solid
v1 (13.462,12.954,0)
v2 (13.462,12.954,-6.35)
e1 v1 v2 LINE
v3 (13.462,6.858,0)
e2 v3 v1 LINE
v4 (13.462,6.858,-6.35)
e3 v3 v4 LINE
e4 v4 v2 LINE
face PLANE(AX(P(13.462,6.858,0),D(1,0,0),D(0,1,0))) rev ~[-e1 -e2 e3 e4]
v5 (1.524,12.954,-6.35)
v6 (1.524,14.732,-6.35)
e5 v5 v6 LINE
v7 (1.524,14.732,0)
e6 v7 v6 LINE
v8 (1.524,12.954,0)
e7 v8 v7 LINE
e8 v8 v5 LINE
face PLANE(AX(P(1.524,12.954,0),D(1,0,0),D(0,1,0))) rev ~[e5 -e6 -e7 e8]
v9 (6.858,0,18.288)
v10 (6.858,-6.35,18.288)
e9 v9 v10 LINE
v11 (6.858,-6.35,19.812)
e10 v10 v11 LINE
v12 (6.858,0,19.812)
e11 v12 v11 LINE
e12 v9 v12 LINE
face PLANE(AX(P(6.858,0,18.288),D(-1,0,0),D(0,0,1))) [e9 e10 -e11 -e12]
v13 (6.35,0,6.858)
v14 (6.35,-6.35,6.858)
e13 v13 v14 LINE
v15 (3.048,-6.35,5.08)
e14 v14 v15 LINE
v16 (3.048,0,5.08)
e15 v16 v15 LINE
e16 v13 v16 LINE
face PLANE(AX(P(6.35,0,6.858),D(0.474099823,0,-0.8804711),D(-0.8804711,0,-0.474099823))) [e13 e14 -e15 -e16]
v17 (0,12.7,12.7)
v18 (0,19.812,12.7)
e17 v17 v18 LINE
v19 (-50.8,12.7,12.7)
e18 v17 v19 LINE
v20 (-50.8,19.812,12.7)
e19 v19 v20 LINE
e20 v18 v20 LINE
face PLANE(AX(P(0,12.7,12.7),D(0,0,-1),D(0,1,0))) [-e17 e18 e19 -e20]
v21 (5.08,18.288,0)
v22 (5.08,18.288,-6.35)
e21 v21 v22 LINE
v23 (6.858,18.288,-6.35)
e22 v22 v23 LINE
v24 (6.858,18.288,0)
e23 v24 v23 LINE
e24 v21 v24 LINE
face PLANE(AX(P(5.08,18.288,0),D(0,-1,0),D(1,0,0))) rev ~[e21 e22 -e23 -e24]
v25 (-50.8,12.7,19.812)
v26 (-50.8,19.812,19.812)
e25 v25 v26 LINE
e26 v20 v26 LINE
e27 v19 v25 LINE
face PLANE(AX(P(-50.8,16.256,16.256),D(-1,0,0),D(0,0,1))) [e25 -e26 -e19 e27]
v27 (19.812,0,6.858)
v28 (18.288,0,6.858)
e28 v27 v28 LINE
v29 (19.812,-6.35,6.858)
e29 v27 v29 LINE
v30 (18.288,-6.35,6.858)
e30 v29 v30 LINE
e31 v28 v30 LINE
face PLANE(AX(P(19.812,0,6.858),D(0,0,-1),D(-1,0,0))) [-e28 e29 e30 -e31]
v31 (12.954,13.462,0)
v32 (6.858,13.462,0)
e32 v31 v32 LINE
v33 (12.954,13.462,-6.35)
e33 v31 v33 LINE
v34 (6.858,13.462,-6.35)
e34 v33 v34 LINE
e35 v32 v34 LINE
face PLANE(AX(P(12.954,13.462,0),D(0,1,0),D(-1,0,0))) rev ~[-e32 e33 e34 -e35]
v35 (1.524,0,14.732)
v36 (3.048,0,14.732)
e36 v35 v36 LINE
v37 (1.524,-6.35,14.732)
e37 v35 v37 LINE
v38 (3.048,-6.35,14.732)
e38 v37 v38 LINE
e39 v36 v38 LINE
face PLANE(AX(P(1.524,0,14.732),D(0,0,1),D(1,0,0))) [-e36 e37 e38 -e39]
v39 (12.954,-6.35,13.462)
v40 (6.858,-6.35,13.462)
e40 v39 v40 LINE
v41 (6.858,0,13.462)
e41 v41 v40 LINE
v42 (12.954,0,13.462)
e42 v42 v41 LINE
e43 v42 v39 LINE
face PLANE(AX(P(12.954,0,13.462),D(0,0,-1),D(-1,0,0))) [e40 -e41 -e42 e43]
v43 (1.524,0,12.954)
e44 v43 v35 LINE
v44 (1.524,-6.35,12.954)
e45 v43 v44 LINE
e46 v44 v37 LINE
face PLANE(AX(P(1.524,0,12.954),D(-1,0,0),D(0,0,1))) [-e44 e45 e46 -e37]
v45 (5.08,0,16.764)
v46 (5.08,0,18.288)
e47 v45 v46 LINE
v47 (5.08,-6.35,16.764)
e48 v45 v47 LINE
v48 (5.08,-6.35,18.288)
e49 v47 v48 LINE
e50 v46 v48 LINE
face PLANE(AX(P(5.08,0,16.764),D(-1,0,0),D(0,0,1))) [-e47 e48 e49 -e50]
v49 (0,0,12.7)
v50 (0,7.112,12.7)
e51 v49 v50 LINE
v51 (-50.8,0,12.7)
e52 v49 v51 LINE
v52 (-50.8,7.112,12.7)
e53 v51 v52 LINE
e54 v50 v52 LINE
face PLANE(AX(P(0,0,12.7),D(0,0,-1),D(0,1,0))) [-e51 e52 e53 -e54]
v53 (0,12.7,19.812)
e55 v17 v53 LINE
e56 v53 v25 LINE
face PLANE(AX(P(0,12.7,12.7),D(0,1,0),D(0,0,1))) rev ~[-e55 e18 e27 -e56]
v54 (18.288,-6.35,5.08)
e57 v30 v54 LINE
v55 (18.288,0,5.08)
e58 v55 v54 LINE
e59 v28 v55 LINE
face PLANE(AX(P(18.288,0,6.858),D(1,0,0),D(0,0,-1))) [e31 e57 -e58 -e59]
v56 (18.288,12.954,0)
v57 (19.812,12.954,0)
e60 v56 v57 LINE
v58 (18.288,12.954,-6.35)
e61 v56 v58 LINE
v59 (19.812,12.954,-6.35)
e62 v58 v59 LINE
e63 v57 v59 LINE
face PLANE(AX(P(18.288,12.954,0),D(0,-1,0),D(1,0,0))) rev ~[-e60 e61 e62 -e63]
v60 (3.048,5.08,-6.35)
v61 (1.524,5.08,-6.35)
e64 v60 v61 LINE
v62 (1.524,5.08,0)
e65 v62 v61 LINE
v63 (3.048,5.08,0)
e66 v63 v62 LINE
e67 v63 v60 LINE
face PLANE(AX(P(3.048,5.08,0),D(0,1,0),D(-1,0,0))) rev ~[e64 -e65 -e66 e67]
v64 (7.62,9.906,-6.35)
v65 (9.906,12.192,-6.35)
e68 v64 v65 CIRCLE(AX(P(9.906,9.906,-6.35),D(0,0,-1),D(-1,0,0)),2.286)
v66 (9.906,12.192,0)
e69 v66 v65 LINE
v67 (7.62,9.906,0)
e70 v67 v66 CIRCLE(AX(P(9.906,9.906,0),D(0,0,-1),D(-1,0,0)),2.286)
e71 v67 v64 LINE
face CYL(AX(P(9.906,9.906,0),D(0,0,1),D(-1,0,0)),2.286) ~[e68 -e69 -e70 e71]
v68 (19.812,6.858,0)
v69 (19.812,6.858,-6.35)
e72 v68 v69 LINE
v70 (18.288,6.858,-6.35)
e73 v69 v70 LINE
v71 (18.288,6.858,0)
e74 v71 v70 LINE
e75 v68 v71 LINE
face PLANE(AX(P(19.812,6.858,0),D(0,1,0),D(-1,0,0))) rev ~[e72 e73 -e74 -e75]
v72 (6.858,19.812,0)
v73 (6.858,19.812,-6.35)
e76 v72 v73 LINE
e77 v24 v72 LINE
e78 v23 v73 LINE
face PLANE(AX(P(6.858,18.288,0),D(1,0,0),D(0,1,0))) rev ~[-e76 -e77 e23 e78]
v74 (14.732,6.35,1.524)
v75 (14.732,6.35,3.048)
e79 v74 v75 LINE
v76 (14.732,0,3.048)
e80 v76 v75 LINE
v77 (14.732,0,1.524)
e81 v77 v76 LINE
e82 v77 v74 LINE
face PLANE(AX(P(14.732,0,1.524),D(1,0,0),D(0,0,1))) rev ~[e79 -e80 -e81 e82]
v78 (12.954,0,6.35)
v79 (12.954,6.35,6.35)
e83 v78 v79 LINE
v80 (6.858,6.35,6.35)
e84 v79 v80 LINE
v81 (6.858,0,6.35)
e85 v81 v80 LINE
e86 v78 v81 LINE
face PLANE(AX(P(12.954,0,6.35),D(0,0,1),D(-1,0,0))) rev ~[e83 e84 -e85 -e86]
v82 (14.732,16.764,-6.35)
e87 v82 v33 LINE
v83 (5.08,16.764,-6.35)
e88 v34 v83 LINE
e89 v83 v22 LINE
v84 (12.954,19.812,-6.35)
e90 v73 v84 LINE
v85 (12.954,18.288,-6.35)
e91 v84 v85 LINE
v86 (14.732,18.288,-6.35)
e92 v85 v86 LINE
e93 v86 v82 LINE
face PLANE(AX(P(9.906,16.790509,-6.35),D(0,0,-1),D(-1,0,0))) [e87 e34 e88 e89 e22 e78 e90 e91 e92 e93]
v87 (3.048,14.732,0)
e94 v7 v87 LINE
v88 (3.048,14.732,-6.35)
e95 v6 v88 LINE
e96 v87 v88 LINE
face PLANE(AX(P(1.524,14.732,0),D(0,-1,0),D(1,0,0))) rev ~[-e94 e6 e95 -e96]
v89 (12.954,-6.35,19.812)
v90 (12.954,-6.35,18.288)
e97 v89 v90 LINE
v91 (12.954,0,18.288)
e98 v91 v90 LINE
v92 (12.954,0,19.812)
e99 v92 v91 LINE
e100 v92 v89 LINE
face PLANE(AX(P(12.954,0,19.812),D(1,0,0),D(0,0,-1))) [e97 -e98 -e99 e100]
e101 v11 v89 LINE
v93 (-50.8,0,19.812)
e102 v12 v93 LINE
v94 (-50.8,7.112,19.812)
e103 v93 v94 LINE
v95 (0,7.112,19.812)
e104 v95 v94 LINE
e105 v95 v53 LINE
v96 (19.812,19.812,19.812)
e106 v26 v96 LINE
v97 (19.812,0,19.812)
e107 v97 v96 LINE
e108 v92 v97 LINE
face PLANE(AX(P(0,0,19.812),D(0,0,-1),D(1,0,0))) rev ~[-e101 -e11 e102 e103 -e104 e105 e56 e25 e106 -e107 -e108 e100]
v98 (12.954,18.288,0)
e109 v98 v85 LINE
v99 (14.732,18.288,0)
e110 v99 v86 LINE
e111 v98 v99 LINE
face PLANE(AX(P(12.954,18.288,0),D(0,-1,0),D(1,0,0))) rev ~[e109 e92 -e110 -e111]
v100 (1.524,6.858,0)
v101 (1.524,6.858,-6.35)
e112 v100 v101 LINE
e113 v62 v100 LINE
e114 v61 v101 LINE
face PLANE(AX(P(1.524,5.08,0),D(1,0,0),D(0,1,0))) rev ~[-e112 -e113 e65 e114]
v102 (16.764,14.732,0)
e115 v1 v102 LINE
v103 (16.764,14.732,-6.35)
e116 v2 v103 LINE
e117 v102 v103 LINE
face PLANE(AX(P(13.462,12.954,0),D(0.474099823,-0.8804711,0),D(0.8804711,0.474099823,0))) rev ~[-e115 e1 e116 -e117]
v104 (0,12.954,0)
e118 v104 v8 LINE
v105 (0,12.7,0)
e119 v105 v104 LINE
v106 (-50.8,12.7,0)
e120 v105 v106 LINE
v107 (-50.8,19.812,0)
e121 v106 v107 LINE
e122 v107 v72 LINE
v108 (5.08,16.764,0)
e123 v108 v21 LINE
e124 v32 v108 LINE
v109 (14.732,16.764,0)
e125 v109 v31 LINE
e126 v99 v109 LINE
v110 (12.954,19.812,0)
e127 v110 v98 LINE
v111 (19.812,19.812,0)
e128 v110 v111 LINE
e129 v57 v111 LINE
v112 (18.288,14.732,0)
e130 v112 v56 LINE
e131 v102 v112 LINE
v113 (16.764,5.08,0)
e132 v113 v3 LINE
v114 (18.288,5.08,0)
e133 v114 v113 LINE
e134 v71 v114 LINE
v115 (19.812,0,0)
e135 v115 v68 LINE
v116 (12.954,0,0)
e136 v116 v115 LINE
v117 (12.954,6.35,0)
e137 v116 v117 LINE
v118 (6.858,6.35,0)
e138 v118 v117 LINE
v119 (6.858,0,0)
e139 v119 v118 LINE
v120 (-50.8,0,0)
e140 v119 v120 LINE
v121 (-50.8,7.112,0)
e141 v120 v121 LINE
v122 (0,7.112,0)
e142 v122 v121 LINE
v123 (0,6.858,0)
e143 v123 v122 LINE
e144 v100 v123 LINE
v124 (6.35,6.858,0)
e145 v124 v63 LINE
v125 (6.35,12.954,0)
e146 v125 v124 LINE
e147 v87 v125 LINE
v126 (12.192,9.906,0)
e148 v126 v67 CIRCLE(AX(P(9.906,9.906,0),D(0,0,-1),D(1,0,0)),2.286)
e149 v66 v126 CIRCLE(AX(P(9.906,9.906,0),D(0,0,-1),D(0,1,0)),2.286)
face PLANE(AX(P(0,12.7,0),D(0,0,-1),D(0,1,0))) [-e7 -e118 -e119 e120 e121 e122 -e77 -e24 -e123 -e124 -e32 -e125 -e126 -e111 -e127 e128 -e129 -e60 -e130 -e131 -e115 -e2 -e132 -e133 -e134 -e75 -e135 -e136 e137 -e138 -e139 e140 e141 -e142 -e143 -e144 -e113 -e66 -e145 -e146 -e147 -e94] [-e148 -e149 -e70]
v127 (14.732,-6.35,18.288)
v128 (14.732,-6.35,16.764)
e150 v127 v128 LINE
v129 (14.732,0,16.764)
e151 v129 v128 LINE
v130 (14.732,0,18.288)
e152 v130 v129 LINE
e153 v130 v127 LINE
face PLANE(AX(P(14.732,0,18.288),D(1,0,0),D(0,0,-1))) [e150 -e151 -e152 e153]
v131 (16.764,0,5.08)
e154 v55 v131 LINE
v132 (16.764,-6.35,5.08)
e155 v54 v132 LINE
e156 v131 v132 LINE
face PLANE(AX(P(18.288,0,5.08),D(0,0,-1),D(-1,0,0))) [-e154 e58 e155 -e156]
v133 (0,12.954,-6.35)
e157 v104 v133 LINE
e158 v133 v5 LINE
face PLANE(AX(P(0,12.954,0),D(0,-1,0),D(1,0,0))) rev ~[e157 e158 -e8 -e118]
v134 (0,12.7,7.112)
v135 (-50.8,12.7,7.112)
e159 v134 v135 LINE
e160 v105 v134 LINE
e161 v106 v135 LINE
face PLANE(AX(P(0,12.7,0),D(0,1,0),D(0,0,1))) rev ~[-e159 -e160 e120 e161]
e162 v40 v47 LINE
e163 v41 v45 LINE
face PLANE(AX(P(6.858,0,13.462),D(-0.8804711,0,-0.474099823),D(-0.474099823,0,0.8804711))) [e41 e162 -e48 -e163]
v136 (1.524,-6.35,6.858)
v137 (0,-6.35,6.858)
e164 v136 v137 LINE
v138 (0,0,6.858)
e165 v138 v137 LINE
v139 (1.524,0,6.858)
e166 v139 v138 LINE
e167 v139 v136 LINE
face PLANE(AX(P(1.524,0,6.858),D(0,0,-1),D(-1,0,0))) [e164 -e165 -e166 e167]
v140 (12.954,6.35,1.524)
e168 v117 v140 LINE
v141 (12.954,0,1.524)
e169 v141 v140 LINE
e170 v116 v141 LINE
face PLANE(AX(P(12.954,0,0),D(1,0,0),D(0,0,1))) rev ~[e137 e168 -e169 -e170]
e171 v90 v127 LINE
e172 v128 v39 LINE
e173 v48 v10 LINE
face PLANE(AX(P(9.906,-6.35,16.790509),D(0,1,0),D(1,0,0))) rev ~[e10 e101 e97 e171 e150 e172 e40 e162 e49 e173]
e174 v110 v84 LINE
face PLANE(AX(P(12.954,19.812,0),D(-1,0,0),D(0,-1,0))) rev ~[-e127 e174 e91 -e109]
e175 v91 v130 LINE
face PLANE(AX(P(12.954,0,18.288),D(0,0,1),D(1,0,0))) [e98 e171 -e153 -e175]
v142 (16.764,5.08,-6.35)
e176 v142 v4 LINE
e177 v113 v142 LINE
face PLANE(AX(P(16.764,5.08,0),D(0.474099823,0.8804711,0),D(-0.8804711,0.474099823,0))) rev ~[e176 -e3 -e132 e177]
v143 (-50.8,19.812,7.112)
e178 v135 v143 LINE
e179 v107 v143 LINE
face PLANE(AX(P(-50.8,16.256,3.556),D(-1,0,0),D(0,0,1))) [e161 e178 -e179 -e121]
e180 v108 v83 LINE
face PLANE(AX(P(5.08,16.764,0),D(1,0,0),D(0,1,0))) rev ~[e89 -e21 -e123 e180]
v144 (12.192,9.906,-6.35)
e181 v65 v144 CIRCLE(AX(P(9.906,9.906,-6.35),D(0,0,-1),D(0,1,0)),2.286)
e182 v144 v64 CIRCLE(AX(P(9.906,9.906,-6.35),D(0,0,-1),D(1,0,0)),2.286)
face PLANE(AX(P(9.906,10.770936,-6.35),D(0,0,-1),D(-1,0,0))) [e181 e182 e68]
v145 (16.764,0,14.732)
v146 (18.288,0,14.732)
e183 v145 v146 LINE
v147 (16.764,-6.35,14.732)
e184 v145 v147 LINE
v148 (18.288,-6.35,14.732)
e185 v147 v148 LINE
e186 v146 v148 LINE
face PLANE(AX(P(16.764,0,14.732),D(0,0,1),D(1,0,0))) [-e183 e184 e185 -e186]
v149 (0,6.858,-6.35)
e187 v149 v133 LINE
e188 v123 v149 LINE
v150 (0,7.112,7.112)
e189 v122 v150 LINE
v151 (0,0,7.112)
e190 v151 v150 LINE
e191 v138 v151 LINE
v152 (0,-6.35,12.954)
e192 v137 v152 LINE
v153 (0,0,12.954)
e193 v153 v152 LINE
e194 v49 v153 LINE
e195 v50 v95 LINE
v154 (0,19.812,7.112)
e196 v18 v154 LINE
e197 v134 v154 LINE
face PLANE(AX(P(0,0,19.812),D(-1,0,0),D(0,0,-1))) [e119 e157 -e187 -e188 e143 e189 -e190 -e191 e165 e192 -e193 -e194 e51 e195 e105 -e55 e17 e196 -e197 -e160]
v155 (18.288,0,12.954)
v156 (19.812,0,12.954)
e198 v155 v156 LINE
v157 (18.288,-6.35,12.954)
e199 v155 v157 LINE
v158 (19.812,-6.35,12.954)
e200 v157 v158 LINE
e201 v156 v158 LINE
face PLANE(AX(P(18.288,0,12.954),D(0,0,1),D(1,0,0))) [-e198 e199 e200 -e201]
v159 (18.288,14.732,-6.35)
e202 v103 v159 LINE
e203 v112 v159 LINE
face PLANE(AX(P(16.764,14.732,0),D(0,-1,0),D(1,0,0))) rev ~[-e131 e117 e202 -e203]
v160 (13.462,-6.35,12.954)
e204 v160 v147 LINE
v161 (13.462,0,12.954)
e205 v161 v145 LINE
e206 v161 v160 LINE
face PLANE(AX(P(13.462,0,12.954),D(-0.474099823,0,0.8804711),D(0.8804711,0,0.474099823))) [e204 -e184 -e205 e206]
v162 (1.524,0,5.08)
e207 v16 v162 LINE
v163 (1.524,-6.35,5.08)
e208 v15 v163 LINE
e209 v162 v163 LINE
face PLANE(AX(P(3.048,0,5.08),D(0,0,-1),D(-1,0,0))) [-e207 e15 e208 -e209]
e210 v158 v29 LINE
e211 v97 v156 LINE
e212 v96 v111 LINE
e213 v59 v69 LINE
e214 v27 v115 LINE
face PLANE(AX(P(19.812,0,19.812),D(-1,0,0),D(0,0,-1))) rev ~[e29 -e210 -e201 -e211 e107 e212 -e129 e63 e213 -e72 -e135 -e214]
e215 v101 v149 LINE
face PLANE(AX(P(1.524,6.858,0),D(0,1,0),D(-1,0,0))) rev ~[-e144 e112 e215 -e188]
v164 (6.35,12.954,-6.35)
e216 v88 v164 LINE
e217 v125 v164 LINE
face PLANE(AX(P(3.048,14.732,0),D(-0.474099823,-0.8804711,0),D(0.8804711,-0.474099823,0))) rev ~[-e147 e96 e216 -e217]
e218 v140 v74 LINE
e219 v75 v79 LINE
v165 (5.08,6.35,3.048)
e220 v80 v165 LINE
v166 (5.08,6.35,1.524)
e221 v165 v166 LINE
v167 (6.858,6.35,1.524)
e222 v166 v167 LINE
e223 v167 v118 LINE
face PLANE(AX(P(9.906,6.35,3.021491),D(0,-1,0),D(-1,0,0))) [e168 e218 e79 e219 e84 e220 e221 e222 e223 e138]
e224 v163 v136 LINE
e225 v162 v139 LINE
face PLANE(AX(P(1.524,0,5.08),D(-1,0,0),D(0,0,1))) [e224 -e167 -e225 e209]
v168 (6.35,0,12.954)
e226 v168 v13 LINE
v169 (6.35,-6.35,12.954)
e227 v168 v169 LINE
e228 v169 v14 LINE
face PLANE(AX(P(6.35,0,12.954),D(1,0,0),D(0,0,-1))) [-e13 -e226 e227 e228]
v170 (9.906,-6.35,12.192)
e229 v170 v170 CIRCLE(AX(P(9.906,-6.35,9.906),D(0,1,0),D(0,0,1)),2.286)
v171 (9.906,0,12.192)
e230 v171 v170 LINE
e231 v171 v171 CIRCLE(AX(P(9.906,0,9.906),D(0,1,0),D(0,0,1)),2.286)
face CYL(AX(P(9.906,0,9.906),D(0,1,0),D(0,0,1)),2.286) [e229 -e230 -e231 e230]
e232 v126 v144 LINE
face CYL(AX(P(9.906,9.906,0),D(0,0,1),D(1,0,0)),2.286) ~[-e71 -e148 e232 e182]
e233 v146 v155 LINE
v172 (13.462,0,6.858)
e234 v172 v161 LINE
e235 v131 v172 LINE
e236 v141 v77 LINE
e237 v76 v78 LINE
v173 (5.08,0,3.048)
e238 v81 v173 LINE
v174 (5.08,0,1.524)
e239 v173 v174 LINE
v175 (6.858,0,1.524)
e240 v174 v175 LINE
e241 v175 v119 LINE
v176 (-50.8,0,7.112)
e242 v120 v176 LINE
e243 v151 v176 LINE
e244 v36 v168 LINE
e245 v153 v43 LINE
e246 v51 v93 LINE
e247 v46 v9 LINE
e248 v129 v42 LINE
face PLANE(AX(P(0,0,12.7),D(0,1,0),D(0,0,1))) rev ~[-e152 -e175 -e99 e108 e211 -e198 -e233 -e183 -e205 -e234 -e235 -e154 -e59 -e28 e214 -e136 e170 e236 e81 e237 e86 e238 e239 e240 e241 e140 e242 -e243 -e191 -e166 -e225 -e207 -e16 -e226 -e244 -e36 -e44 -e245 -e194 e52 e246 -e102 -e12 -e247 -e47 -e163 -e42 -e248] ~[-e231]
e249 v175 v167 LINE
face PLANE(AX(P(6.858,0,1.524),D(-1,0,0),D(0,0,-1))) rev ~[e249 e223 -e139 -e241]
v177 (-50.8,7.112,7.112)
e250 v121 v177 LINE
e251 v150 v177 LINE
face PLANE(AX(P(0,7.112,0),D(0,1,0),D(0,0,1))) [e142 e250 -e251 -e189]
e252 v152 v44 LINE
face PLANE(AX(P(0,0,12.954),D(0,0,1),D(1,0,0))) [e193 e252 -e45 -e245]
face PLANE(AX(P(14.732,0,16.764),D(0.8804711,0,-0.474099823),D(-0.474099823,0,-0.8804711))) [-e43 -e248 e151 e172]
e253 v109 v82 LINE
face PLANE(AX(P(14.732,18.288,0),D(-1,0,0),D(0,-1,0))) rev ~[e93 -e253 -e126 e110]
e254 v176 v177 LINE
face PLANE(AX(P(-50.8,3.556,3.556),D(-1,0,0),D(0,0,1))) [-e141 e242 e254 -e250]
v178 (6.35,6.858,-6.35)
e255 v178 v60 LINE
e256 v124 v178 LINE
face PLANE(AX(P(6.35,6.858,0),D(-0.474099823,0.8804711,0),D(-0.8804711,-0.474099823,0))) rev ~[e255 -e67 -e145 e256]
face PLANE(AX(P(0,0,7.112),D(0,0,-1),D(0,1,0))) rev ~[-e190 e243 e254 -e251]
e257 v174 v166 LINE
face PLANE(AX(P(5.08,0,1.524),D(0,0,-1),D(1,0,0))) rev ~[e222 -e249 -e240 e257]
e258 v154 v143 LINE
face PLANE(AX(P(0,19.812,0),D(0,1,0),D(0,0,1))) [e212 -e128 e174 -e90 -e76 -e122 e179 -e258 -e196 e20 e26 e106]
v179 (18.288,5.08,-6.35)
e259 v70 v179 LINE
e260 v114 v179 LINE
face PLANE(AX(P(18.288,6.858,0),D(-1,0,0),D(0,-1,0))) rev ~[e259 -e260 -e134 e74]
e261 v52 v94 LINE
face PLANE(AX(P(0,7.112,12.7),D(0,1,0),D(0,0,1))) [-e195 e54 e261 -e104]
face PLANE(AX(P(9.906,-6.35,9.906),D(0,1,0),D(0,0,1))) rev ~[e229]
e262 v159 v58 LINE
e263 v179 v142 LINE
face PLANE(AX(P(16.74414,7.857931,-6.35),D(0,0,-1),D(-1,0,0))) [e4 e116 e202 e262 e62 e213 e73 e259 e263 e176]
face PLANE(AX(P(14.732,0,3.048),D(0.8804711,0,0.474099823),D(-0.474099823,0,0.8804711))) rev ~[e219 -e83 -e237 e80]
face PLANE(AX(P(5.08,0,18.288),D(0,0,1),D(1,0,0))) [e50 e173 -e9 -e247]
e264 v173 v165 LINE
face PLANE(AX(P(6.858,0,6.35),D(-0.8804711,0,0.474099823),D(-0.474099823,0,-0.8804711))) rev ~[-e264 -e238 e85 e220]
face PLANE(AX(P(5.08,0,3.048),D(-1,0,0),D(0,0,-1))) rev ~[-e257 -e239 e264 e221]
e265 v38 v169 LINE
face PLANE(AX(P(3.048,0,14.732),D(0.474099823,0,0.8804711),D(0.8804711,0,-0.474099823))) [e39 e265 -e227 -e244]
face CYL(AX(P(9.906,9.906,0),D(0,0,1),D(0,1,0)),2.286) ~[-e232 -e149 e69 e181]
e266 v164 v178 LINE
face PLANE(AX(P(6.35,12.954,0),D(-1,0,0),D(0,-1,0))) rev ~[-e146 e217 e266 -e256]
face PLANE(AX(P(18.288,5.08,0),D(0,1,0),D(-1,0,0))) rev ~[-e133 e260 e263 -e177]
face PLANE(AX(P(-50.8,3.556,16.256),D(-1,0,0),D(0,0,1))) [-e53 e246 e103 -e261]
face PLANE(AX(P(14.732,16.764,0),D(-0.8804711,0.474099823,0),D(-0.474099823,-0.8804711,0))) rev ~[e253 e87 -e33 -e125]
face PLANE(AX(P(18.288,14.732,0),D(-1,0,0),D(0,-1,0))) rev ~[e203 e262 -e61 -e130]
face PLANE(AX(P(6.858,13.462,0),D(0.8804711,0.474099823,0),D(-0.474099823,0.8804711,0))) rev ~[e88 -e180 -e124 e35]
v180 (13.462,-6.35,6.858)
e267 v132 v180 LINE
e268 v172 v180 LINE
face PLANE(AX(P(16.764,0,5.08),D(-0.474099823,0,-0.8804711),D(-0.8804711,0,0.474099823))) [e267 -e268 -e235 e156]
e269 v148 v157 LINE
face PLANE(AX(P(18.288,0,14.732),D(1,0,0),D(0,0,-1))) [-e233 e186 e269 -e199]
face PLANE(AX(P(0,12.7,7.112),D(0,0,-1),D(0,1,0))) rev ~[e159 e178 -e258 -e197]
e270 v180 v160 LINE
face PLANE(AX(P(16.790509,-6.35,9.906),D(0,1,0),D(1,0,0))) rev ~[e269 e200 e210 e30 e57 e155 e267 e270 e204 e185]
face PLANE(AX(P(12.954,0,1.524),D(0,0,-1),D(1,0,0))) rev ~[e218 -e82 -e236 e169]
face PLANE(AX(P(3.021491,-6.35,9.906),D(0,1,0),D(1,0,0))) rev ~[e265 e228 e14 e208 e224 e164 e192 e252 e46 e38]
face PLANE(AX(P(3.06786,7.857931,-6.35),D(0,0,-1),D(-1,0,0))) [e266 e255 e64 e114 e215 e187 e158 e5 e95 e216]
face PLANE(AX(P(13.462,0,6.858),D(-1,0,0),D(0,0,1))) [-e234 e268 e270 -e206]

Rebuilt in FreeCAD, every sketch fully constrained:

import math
import FreeCAD as App
import Part
import Sketcher
Q = App.Units.Quantity

doc = App.newDocument("Part")
body = doc.addObject("PartDesign::Body", "Body")

sketch1 = body.newObject("Sketcher::SketchObject", "Sketch")
sketch1.AttachmentSupport = (doc.getObject("XZ_Plane"), [""])
sketch1.MapMode = "FlatFace"
sketch1.addGeometry([
    Part.LineSegment(App.Vector(0, 0, 0), App.Vector(0, 19.812, 0)),
    Part.LineSegment(App.Vector(0, 19.812, 0), App.Vector(19.812, 19.812, 0)),
    Part.LineSegment(App.Vector(19.812, 19.812, 0), App.Vector(19.812, 0, 0)),
    Part.LineSegment(App.Vector(19.812, 0, 0), App.Vector(0, 0, 0)),
], False)
sketch1.addConstraint([
    Sketcher.Constraint("Coincident", 0, 2, 1, 1),
    Sketcher.Constraint("Coincident", 1, 2, 2, 1),
    Sketcher.Constraint("Coincident", 2, 2, 3, 1),
    Sketcher.Constraint("Coincident", 3, 2, 0, 1),
    Sketcher.Constraint("Vertical", 0),
    Sketcher.Constraint("Horizontal", 1),
    Sketcher.Constraint("Vertical", 2),
    Sketcher.Constraint("Horizontal", 3),
    Sketcher.Constraint("Coincident", 3, 2, -1, 1),
    Sketcher.Constraint("Equal", 3, 0),
    Sketcher.Constraint("DistanceX", 1, 1, 1, 2, Q("0.78 in")),
])
pad1 = body.newObject("PartDesign::Pad", "Pad")
pad1.Profile = sketch1
pad1.Length = Q("0.78 in")
pad1.Reversed = True

sketch2 = body.newObject("Sketcher::SketchObject", "Sketch001")
sketch2.AttachmentSupport = (doc.getObject("XZ_Plane"), [""])
sketch2.MapMode = "FlatFace"
sketch2.addGeometry([
    Part.LineSegment(App.Vector(1.524, 6.858, 0), App.Vector(0, 6.858, 0)),
    Part.LineSegment(App.Vector(0, 6.858, 0), App.Vector(0, 12.954, 0)),
    Part.LineSegment(App.Vector(0, 12.954, 0), App.Vector(1.524, 12.954, 0)),
    Part.LineSegment(App.Vector(1.524, 12.954, 0), App.Vector(1.524, 14.732, 0)),
    Part.LineSegment(App.Vector(1.524, 14.732, 0), App.Vector(3.048, 14.732, 0)),
    Part.LineSegment(App.Vector(3.048, 14.732, 0), App.Vector(6.35, 12.954, 0)),
    Part.LineSegment(App.Vector(6.35, 12.954, 0), App.Vector(6.35, 6.858, 0)),
    Part.LineSegment(App.Vector(6.35, 6.858, 0), App.Vector(3.048, 5.08, 0)),
    Part.LineSegment(App.Vector(3.048, 5.08, 0), App.Vector(1.524, 5.08, 0)),
    Part.LineSegment(App.Vector(1.524, 5.08, 0), App.Vector(1.524, 6.858, 0)),
    Part.LineSegment(App.Vector(6.858, 18.288, 0), App.Vector(6.858, 19.812, 0)),
    Part.LineSegment(App.Vector(6.858, 19.812, 0), App.Vector(12.954, 19.812, 0)),
    Part.LineSegment(App.Vector(12.954, 19.812, 0), App.Vector(12.954, 18.288, 0)),
    Part.LineSegment(App.Vector(12.954, 18.288, 0), App.Vector(14.732, 18.288, 0)),
    Part.LineSegment(App.Vector(14.732, 18.288, 0), App.Vector(14.732, 16.764, 0)),
    Part.LineSegment(App.Vector(14.732, 16.764, 0), App.Vector(12.954, 13.462, 0)),
    Part.LineSegment(App.Vector(12.954, 13.462, 0), App.Vector(6.858, 13.462, 0)),
    Part.LineSegment(App.Vector(6.858, 13.462, 0), App.Vector(5.08, 16.764, 0)),
    Part.LineSegment(App.Vector(5.08, 16.764, 0), App.Vector(5.08, 18.288, 0)),
    Part.LineSegment(App.Vector(5.08, 18.288, 0), App.Vector(6.858, 18.288, 0)),
    Part.LineSegment(App.Vector(19.812, 12.954, 0), App.Vector(19.812, 6.858, 0)),
    Part.LineSegment(App.Vector(19.812, 6.858, 0), App.Vector(18.288, 6.858, 0)),
    Part.LineSegment(App.Vector(18.288, 6.858, 0), App.Vector(18.288, 5.08, 0)),
    Part.LineSegment(App.Vector(18.288, 5.08, 0), App.Vector(16.764, 5.08, 0)),
    Part.LineSegment(App.Vector(16.764, 5.08, 0), App.Vector(13.462, 6.858, 0)),
    Part.LineSegment(App.Vector(13.462, 6.858, 0), App.Vector(13.462, 12.954, 0)),
    Part.LineSegment(App.Vector(13.462, 12.954, 0), App.Vector(16.764, 14.732, 0)),
    Part.LineSegment(App.Vector(16.764, 14.732, 0), App.Vector(18.288, 14.732, 0)),
    Part.LineSegment(App.Vector(18.288, 14.732, 0), App.Vector(18.288, 12.954, 0)),
    Part.LineSegment(App.Vector(18.288, 12.954, 0), App.Vector(19.812, 12.954, 0)),
    Part.Circle(App.Vector(9.906, 9.906, 0), App.Vector(0, 0, 1), 2.286),
], False)
sketch2.addConstraint([
    Sketcher.Constraint("Coincident", 0, 2, 1, 1),
    Sketcher.Constraint("Coincident", 1, 2, 2, 1),
    Sketcher.Constraint("Coincident", 2, 2, 3, 1),
    Sketcher.Constraint("Coincident", 3, 2, 4, 1),
    Sketcher.Constraint("Coincident", 4, 2, 5, 1),
    Sketcher.Constraint("Coincident", 5, 2, 6, 1),
    Sketcher.Constraint("Coincident", 6, 2, 7, 1),
    Sketcher.Constraint("Coincident", 7, 2, 8, 1),
    Sketcher.Constraint("Coincident", 8, 2, 9, 1),
    Sketcher.Constraint("Coincident", 9, 2, 0, 1),
    Sketcher.Constraint("Coincident", 10, 2, 11, 1),
    Sketcher.Constraint("Coincident", 11, 2, 12, 1),
    Sketcher.Constraint("Coincident", 12, 2, 13, 1),
    Sketcher.Constraint("Coincident", 13, 2, 14, 1),
    Sketcher.Constraint("Coincident", 14, 2, 15, 1),
    Sketcher.Constraint("Coincident", 15, 2, 16, 1),
    Sketcher.Constraint("Coincident", 16, 2, 17, 1),
    Sketcher.Constraint("Coincident", 17, 2, 18, 1),
    Sketcher.Constraint("Coincident", 18, 2, 19, 1),
    Sketcher.Constraint("Coincident", 19, 2, 10, 1),
    Sketcher.Constraint("Coincident", 20, 2, 21, 1),
    Sketcher.Constraint("Coincident", 21, 2, 22, 1),
    Sketcher.Constraint("Coincident", 22, 2, 23, 1),
    Sketcher.Constraint("Coincident", 23, 2, 24, 1),
    Sketcher.Constraint("Coincident", 24, 2, 25, 1),
    Sketcher.Constraint("Coincident", 25, 2, 26, 1),
    Sketcher.Constraint("Coincident", 26, 2, 27, 1),
    Sketcher.Constraint("Coincident", 27, 2, 28, 1),
    Sketcher.Constraint("Coincident", 28, 2, 29, 1),
    Sketcher.Constraint("Coincident", 29, 2, 20, 1),
    Sketcher.Constraint("Horizontal", 0),
    Sketcher.Constraint("Vertical", 1),
    Sketcher.Constraint("Horizontal", 2),
    Sketcher.Constraint("Vertical", 3),
    Sketcher.Constraint("Horizontal", 4),
    Sketcher.Constraint("Vertical", 6),
    Sketcher.Constraint("Horizontal", 8),
    Sketcher.Constraint("Vertical", 9),
    Sketcher.Constraint("Vertical", 10),
    Sketcher.Constraint("Horizontal", 11),
    Sketcher.Constraint("Vertical", 12),
    Sketcher.Constraint("Horizontal", 13),
    Sketcher.Constraint("Vertical", 14),
    Sketcher.Constraint("Horizontal", 16),
    Sketcher.Constraint("Vertical", 18),
    Sketcher.Constraint("Horizontal", 19),
    Sketcher.Constraint("Vertical", 20),
    Sketcher.Constraint("Horizontal", 21),
    Sketcher.Constraint("Vertical", 22),
    Sketcher.Constraint("Horizontal", 23),
    Sketcher.Constraint("Vertical", 25),
    Sketcher.Constraint("Horizontal", 27),
    Sketcher.Constraint("Vertical", 28),
    Sketcher.Constraint("Horizontal", 29),
    Sketcher.Constraint("PointOnObject", 0, 2, -2),
    Sketcher.Constraint("Perpendicular", 5, 15),
    Sketcher.Constraint("Perpendicular", 7, 17),
    Sketcher.Constraint("Perpendicular", 15, 24),
    Sketcher.Constraint("Perpendicular", 17, 26),
    Sketcher.Constraint("Horizontal", 2, 2, 5, 2),
    Sketcher.Constraint("Horizontal", 0, 2, 6, 2),
    Sketcher.Constraint("Horizontal", 14, 2, 17, 2),
    Sketcher.Constraint("Horizontal", 13, 2, 18, 2),
    Sketcher.Constraint("Horizontal", 9, 2, 20, 2),
    Sketcher.Constraint("Horizontal", 8, 2, 22, 2),
    Sketcher.Constraint("Horizontal", 21, 2, 24, 2),
    Sketcher.Constraint("Horizontal", 5, 2, 25, 2),
    Sketcher.Constraint("Horizontal", 4, 2, 26, 2),
    Sketcher.Constraint("Horizontal", 25, 2, 28, 2),
    Sketcher.Constraint("Vertical", 4, 2, 7, 2),
    Sketcher.Constraint("Vertical", 3, 2, 8, 2),
    Sketcher.Constraint("Vertical", 12, 2, 15, 2),
    Sketcher.Constraint("Vertical", 10, 2, 16, 2),
    Sketcher.Constraint("Vertical", 23, 2, 26, 2),
    Sketcher.Constraint("Vertical", 22, 2, 27, 2),
    Sketcher.Constraint("Equal", 2, 4),
    Sketcher.Constraint("Equal", 8, 21),
    Sketcher.Constraint("Equal", 21, 23),
    Sketcher.Constraint("Equal", 16, 1),
    Sketcher.Constraint("Equal", 19, 3),
    Sketcher.Constraint("Equal", 29, 10),
    Sketcher.Constraint("Equal", 12, 14),
    Sketcher.Constraint("Diameter", 30, Q("0.18 in")),
    Sketcher.Constraint("DistanceX", 0, 2, 0, 1, Q("0.06 in")),
    Sketcher.Constraint("DistanceX", 11, 1, 11, 2, Q("0.24 in")),
    Sketcher.Constraint("DistanceX", 13, 1, 13, 2, Q("0.07 in")),
    Sketcher.Constraint("DistanceY", -1, 1, 7, 2, Q("0.2 in")),
    Sketcher.Constraint("DistanceX", -1, 1, 17, 2, Q("0.2 in")),
    Sketcher.Constraint("DistanceY", 4, 2, 10, 2, Q("0.2 in")),
    Sketcher.Constraint("DistanceX", 14, 2, 20, 2, Q("0.2 in")),
    Sketcher.Constraint("DistanceX", -1, 1, 30, 3, Q("0.39 in")),
    Sketcher.Constraint("DistanceY", -1, 1, 30, 3, Q("0.39 in")),
    Sketcher.Constraint("DistanceX", -1, 1, 5, 2, Q("0.25 in")),
])
pad2 = body.newObject("PartDesign::Pad", "Pad001")
pad2.Profile = sketch2
pad2.Length = Q("0.25 in")

sketch3 = body.newObject("Sketcher::SketchObject", "Sketch002")
sketch3.AttachmentSupport = (doc.getObject("XZ_Plane"), [""])
sketch3.MapMode = "FlatFace"
sketch3.addGeometry([
    Part.LineSegment(App.Vector(12.954, 1.524, 0), App.Vector(12.954, 0, 0)),
    Part.LineSegment(App.Vector(12.954, 0, 0), App.Vector(6.858, 0, 0)),
    Part.LineSegment(App.Vector(6.858, 0, 0), App.Vector(6.858, 1.524, 0)),
    Part.LineSegment(App.Vector(6.858, 1.524, 0), App.Vector(5.08, 1.524, 0)),
    Part.LineSegment(App.Vector(5.08, 1.524, 0), App.Vector(5.08, 3.048, 0)),
    Part.LineSegment(App.Vector(5.08, 3.048, 0), App.Vector(6.858, 6.35, 0)),
    Part.LineSegment(App.Vector(6.858, 6.35, 0), App.Vector(12.954, 6.35, 0)),
    Part.LineSegment(App.Vector(12.954, 6.35, 0), App.Vector(14.732, 3.048, 0)),
    Part.LineSegment(App.Vector(14.732, 3.048, 0), App.Vector(14.732, 1.524, 0)),
    Part.LineSegment(App.Vector(14.732, 1.524, 0), App.Vector(12.954, 1.524, 0)),
], False)
sketch3.addConstraint([
    Sketcher.Constraint("Coincident", 0, 2, 1, 1),
    Sketcher.Constraint("Coincident", 1, 2, 2, 1),
    Sketcher.Constraint("Coincident", 2, 2, 3, 1),
    Sketcher.Constraint("Coincident", 3, 2, 4, 1),
    Sketcher.Constraint("Coincident", 4, 2, 5, 1),
    Sketcher.Constraint("Coincident", 5, 2, 6, 1),
    Sketcher.Constraint("Coincident", 6, 2, 7, 1),
    Sketcher.Constraint("Coincident", 7, 2, 8, 1),
    Sketcher.Constraint("Coincident", 8, 2, 9, 1),
    Sketcher.Constraint("Coincident", 9, 2, 0, 1),
    Sketcher.Constraint("Vertical", 0),
    Sketcher.Constraint("Horizontal", 1),
    Sketcher.Constraint("Vertical", 2),
    Sketcher.Constraint("Horizontal", 3),
    Sketcher.Constraint("Vertical", 4),
    Sketcher.Constraint("Horizontal", 6),
    Sketcher.Constraint("Vertical", 8),
    Sketcher.Constraint("Horizontal", 9),
    Sketcher.Constraint("PointOnObject", 0, 2, -1),
    Sketcher.Constraint("Horizontal", 4, 2, 7, 2),
    Sketcher.Constraint("Horizontal", 3, 2, 8, 2),
    Sketcher.Constraint("Vertical", 2, 2, 5, 2),
    Sketcher.Constraint("Vertical", 0, 2, 6, 2),
    Sketcher.Constraint("Equal", 3, 9),
    Sketcher.Constraint("Equal", 2, 4),
    Sketcher.Constraint("DistanceX", 1, 2, 1, 1, Q("0.24 in")),
    Sketcher.Constraint("DistanceX", 3, 2, 3, 1, Q("0.07 in")),
    Sketcher.Constraint("DistanceY", 0, 2, 0, 1, Q("0.06 in")),
    Sketcher.Constraint("DistanceX", -1, 1, 3, 2, Q("0.2 in")),
    Sketcher.Constraint("DistanceY", -1, 1, 5, 2, Q("0.25 in")),
])
pocket1 = body.newObject("PartDesign::Pocket", "Pocket")
pocket1.Profile = sketch3
pocket1.Length = Q("0.25 in")

sketch4 = body.newObject("Sketcher::SketchObject", "Sketch003")
sketch4.AttachmentSupport = (doc.getObject("XY_Plane"), [""])
sketch4.MapMode = "FlatFace"
sketch4.addGeometry([
    Part.LineSegment(App.Vector(19.812, 6.858, 0), App.Vector(18.288, 6.858, 0)),
    Part.LineSegment(App.Vector(18.288, 6.858, 0), App.Vector(18.288, 5.08, 0)),
    Part.LineSegment(App.Vector(18.288, 5.08, 0), App.Vector(16.764, 5.08, 0)),
    Part.LineSegment(App.Vector(16.764, 5.08, 0), App.Vector(13.462, 6.858, 0)),
    Part.LineSegment(App.Vector(13.462, 6.858, 0), App.Vector(13.462, 12.954, 0)),
    Part.LineSegment(App.Vector(13.462, 12.954, 0), App.Vector(16.764, 14.732, 0)),
    Part.LineSegment(App.Vector(16.764, 14.732, 0), App.Vector(18.288, 14.732, 0)),
    Part.LineSegment(App.Vector(18.288, 14.732, 0), App.Vector(18.288, 12.954, 0)),
    Part.LineSegment(App.Vector(18.288, 12.954, 0), App.Vector(19.812, 12.954, 0)),
    Part.LineSegment(App.Vector(19.812, 12.954, 0), App.Vector(19.812, 6.858, 0)),
    Part.LineSegment(App.Vector(6.858, 19.812, 0), App.Vector(12.954, 19.812, 0)),
    Part.LineSegment(App.Vector(12.954, 19.812, 0), App.Vector(12.954, 18.288, 0)),
    Part.LineSegment(App.Vector(12.954, 18.288, 0), App.Vector(14.732, 18.288, 0)),
    Part.LineSegment(App.Vector(14.732, 18.288, 0), App.Vector(14.732, 16.764, 0)),
    Part.LineSegment(App.Vector(14.732, 16.764, 0), App.Vector(12.954, 13.462, 0)),
    Part.LineSegment(App.Vector(12.954, 13.462, 0), App.Vector(6.858, 13.462, 0)),
    Part.LineSegment(App.Vector(6.858, 13.462, 0), App.Vector(5.08, 16.764, 0)),
    Part.LineSegment(App.Vector(5.08, 16.764, 0), App.Vector(5.08, 18.288, 0)),
    Part.LineSegment(App.Vector(5.08, 18.288, 0), App.Vector(6.858, 18.288, 0)),
    Part.LineSegment(App.Vector(6.858, 18.288, 0), App.Vector(6.858, 19.812, 0)),
    Part.ArcOfCircle(Part.Circle(App.Vector(9.906, 9.906, 0), App.Vector(0, 0, 1), 2.286), math.radians(0), math.radians(90)),
    Part.ArcOfCircle(Part.Circle(App.Vector(9.906, 9.906, 0), App.Vector(0, 0, 1), 2.286), math.radians(180), math.radians(360)),
    Part.ArcOfCircle(Part.Circle(App.Vector(9.906, 9.906, 0), App.Vector(0, 0, 1), 2.286), math.radians(90), math.radians(180)),
    Part.LineSegment(App.Vector(6.35, 6.858, 0), App.Vector(3.048, 5.08, 0)),
    Part.LineSegment(App.Vector(3.048, 5.08, 0), App.Vector(1.524, 5.08, 0)),
    Part.LineSegment(App.Vector(1.524, 5.08, 0), App.Vector(1.524, 6.858, 0)),
    Part.LineSegment(App.Vector(1.524, 6.858, 0), App.Vector(0, 6.858, 0)),
    Part.LineSegment(App.Vector(0, 6.858, 0), App.Vector(0, 12.954, 0)),
    Part.LineSegment(App.Vector(0, 12.954, 0), App.Vector(1.524, 12.954, 0)),
    Part.LineSegment(App.Vector(1.524, 12.954, 0), App.Vector(1.524, 14.732, 0)),
    Part.LineSegment(App.Vector(1.524, 14.732, 0), App.Vector(3.048, 14.732, 0)),
    Part.LineSegment(App.Vector(3.048, 14.732, 0), App.Vector(6.35, 12.954, 0)),
    Part.LineSegment(App.Vector(6.35, 12.954, 0), App.Vector(6.35, 6.858, 0)),
], False)
sketch4.addConstraint([
    Sketcher.Constraint("Coincident", 0, 2, 1, 1),
    Sketcher.Constraint("Coincident", 1, 2, 2, 1),
    Sketcher.Constraint("Coincident", 2, 2, 3, 1),
    Sketcher.Constraint("Coincident", 3, 2, 4, 1),
    Sketcher.Constraint("Coincident", 4, 2, 5, 1),
    Sketcher.Constraint("Coincident", 5, 2, 6, 1),
    Sketcher.Constraint("Coincident", 6, 2, 7, 1),
    Sketcher.Constraint("Coincident", 7, 2, 8, 1),
    Sketcher.Constraint("Coincident", 8, 2, 9, 1),
    Sketcher.Constraint("Coincident", 9, 2, 0, 1),
    Sketcher.Constraint("Coincident", 10, 2, 11, 1),
    Sketcher.Constraint("Coincident", 11, 2, 12, 1),
    Sketcher.Constraint("Coincident", 12, 2, 13, 1),
    Sketcher.Constraint("Coincident", 13, 2, 14, 1),
    Sketcher.Constraint("Coincident", 14, 2, 15, 1),
    Sketcher.Constraint("Coincident", 15, 2, 16, 1),
    Sketcher.Constraint("Coincident", 16, 2, 17, 1),
    Sketcher.Constraint("Coincident", 17, 2, 18, 1),
    Sketcher.Constraint("Coincident", 18, 2, 19, 1),
    Sketcher.Constraint("Coincident", 19, 2, 10, 1),
    Sketcher.Constraint("Tangent", 20, 1, 21, 2),
    Sketcher.Constraint("Tangent", 21, 1, 22, 2),
    Sketcher.Constraint("Tangent", 22, 1, 20, 2),
    Sketcher.Constraint("Coincident", 23, 2, 24, 1),
    Sketcher.Constraint("Coincident", 24, 2, 25, 1),
    Sketcher.Constraint("Coincident", 25, 2, 26, 1),
    Sketcher.Constraint("Coincident", 26, 2, 27, 1),
    Sketcher.Constraint("Coincident", 27, 2, 28, 1),
    Sketcher.Constraint("Coincident", 28, 2, 29, 1),
    Sketcher.Constraint("Coincident", 29, 2, 30, 1),
    Sketcher.Constraint("Coincident", 30, 2, 31, 1),
    Sketcher.Constraint("Coincident", 31, 2, 32, 1),
    Sketcher.Constraint("Coincident", 32, 2, 23, 1),
    Sketcher.Constraint("Horizontal", 0),
    Sketcher.Constraint("Vertical", 1),
    Sketcher.Constraint("Horizontal", 2),
    Sketcher.Constraint("Vertical", 4),
    Sketcher.Constraint("Horizontal", 6),
    Sketcher.Constraint("Vertical", 7),
    Sketcher.Constraint("Horizontal", 8),
    Sketcher.Constraint("Vertical", 9),
    Sketcher.Constraint("Horizontal", 10),
    Sketcher.Constraint("Vertical", 11),
    Sketcher.Constraint("Horizontal", 12),
    Sketcher.Constraint("Vertical", 13),
    Sketcher.Constraint("Horizontal", 15),
    Sketcher.Constraint("Vertical", 17),
    Sketcher.Constraint("Horizontal", 18),
    Sketcher.Constraint("Vertical", 19),
    Sketcher.Constraint("Horizontal", 24),
    Sketcher.Constraint("Vertical", 25),
    Sketcher.Constraint("Horizontal", 26),
    Sketcher.Constraint("Vertical", 27),
    Sketcher.Constraint("Horizontal", 28),
    Sketcher.Constraint("Vertical", 29),
    Sketcher.Constraint("Horizontal", 30),
    Sketcher.Constraint("Vertical", 32),
    Sketcher.Constraint("PointOnObject", 26, 2, -2),
    Sketcher.Constraint("Perpendicular", 3, 14),
    Sketcher.Constraint("Perpendicular", 5, 16),
    Sketcher.Constraint("Perpendicular", 16, 23),
    Sketcher.Constraint("Perpendicular", 14, 31),
    Sketcher.Constraint("Horizontal", 0, 2, 3, 2),
    Sketcher.Constraint("Horizontal", 4, 2, 7, 2),
    Sketcher.Constraint("Horizontal", 13, 2, 16, 2),
    Sketcher.Constraint("Horizontal", 12, 2, 17, 2),
    Sketcher.Constraint("Horizontal", 22, 3, 20, 1),
    Sketcher.Constraint("Horizontal", 20, 1, 21, 1),
    Sketcher.Constraint("Horizontal", 2, 2, 23, 2),
    Sketcher.Constraint("Horizontal", 9, 2, 25, 2),
    Sketcher.Constraint("Horizontal", 8, 2, 27, 2),
    Sketcher.Constraint("Horizontal", 6, 2, 29, 2),
    Sketcher.Constraint("Horizontal", 28, 2, 31, 2),
    Sketcher.Constraint("Horizontal", 26, 2, 32, 2),
    Sketcher.Constraint("Vertical", 2, 2, 5, 2),
    Sketcher.Constraint("Vertical", 1, 2, 6, 2),
    Sketcher.Constraint("Vertical", 11, 2, 14, 2),
    Sketcher.Constraint("Vertical", 15, 2, 18, 2),
    Sketcher.Constraint("Vertical", 21, 3, 22, 1),
    Sketcher.Constraint("Vertical", 25, 2, 28, 2),
    Sketcher.Constraint("Vertical", 23, 2, 30, 2),
    Sketcher.Constraint("Equal", 0, 2),
    Sketcher.Constraint("Equal", 8, 24),
    Sketcher.Constraint("Equal", 24, 26),
    Sketcher.Constraint("Equal", 18, 1),
    Sketcher.Constraint("Equal", 15, 4),
    Sketcher.Constraint("Equal", 30, 11),
    Sketcher.Constraint("Equal", 11, 13),
    Sketcher.Constraint("Radius", 20, Q("0.09 in")),
    Sketcher.Constraint("DistanceX", 0, 2, 0, 1, Q("0.06 in")),
    Sketcher.Constraint("DistanceX", 10, 1, 10, 2, Q("0.24 in")),
    Sketcher.Constraint("DistanceX", 12, 1, 12, 2, Q("0.07 in")),
    Sketcher.Constraint("DistanceY", -1, 1, 1, 2, Q("0.2 in")),
    Sketcher.Constraint("DistanceX", -1, 1, 16, 2, Q("0.2 in")),
    Sketcher.Constraint("DistanceX", -1, 1, 21, 1, Q("0.3 in")),
    Sketcher.Constraint("DistanceY", 5, 2, 10, 2, Q("0.2 in")),
    Sketcher.Constraint("DistanceY", -1, 1, 20, 3, Q("0.39 in")),
    Sketcher.Constraint("DistanceX", -1, 1, 0, 2, Q("0.72 in")),
    Sketcher.Constraint("DistanceX", -1, 1, 3, 2, Q("0.53 in")),
])
pad3 = body.newObject("PartDesign::Pad", "Pad002")
pad3.Profile = sketch4
pad3.Length = Q("0.25 in")
pad3.Reversed = True

sketch5 = body.newObject("Sketcher::SketchObject", "Sketch004")
sketch5.AttachmentSupport = (doc.getObject("YZ_Plane"), [""])
sketch5.MapMode = "FlatFace"
sketch5.addGeometry([
    Part.LineSegment(App.Vector(19.812, 0, 0), App.Vector(12.7, 0, 0)),
    Part.LineSegment(App.Vector(12.7, 0, 0), App.Vector(12.7, 7.112, 0)),
    Part.LineSegment(App.Vector(12.7, 7.112, 0), App.Vector(19.812, 7.112, 0)),
    Part.LineSegment(App.Vector(19.812, 7.112, 0), App.Vector(19.812, 0, 0)),
    Part.LineSegment(App.Vector(19.812, 12.7, 0), App.Vector(12.7, 12.7, 0)),
    Part.LineSegment(App.Vector(12.7, 12.7, 0), App.Vector(12.7, 19.812, 0)),
    Part.LineSegment(App.Vector(12.7, 19.812, 0), App.Vector(19.812, 19.812, 0)),
    Part.LineSegment(App.Vector(19.812, 19.812, 0), App.Vector(19.812, 12.7, 0)),
    Part.LineSegment(App.Vector(7.112, 12.7, 0), App.Vector(0, 12.7, 0)),
    Part.LineSegment(App.Vector(0, 12.7, 0), App.Vector(0, 19.812, 0)),
    Part.LineSegment(App.Vector(0, 19.812, 0), App.Vector(7.112, 19.812, 0)),
    Part.LineSegment(App.Vector(7.112, 19.812, 0), App.Vector(7.112, 12.7, 0)),
    Part.LineSegment(App.Vector(7.112, 0, 0), App.Vector(0, 0, 0)),
    Part.LineSegment(App.Vector(0, 0, 0), App.Vector(0, 7.112, 0)),
    Part.LineSegment(App.Vector(0, 7.112, 0), App.Vector(7.112, 7.112, 0)),
    Part.LineSegment(App.Vector(7.112, 7.112, 0), App.Vector(7.112, 0, 0)),
], False)
sketch5.addConstraint([
    Sketcher.Constraint("Coincident", 0, 2, 1, 1),
    Sketcher.Constraint("Coincident", 1, 2, 2, 1),
    Sketcher.Constraint("Coincident", 2, 2, 3, 1),
    Sketcher.Constraint("Coincident", 3, 2, 0, 1),
    Sketcher.Constraint("Coincident", 4, 2, 5, 1),
    Sketcher.Constraint("Coincident", 5, 2, 6, 1),
    Sketcher.Constraint("Coincident", 6, 2, 7, 1),
    Sketcher.Constraint("Coincident", 7, 2, 4, 1),
    Sketcher.Constraint("Coincident", 8, 2, 9, 1),
    Sketcher.Constraint("Coincident", 9, 2, 10, 1),
    Sketcher.Constraint("Coincident", 10, 2, 11, 1),
    Sketcher.Constraint("Coincident", 11, 2, 8, 1),
    Sketcher.Constraint("Coincident", 12, 2, 13, 1),
    Sketcher.Constraint("Coincident", 13, 2, 14, 1),
    Sketcher.Constraint("Coincident", 14, 2, 15, 1),
    Sketcher.Constraint("Coincident", 15, 2, 12, 1),
    Sketcher.Constraint("Horizontal", 0),
    Sketcher.Constraint("Vertical", 1),
    Sketcher.Constraint("Horizontal", 2),
    Sketcher.Constraint("Vertical", 3),
    Sketcher.Constraint("Horizontal", 4),
    Sketcher.Constraint("Vertical", 5),
    Sketcher.Constraint("Horizontal", 6),
    Sketcher.Constraint("Vertical", 7),
    Sketcher.Constraint("Horizontal", 8),
    Sketcher.Constraint("Vertical", 9),
    Sketcher.Constraint("Horizontal", 10),
    Sketcher.Constraint("Vertical", 11),
    Sketcher.Constraint("Horizontal", 12),
    Sketcher.Constraint("Vertical", 13),
    Sketcher.Constraint("Horizontal", 14),
    Sketcher.Constraint("Vertical", 15),
    Sketcher.Constraint("Coincident", 12, 2, -1, 1),
    Sketcher.Constraint("PointOnObject", 0, 2, -1),
    Sketcher.Constraint("PointOnObject", 8, 2, -2),
    Sketcher.Constraint("Horizontal", 7, 2, 8, 2),
    Sketcher.Constraint("Horizontal", 6, 2, 9, 2),
    Sketcher.Constraint("Horizontal", 2, 2, 13, 2),
    Sketcher.Constraint("Vertical", 1, 2, 4, 2),
    Sketcher.Constraint("Vertical", 3, 2, 6, 2),
    Sketcher.Constraint("Vertical", 11, 2, 14, 2),
    Sketcher.Constraint("Equal", 6, 8),
    Sketcher.Constraint("Equal", 14, 1),
    Sketcher.Constraint("Equal", 3, 5),
    Sketcher.Constraint("DistanceX", 0, 2, 0, 1, Q("0.28 in")),
    Sketcher.Constraint("DistanceX", -1, 1, 0, 2, Q("0.5 in")),
    Sketcher.Constraint("DistanceY", -1, 1, 4, 2, Q("0.5 in")),
])
pad4 = body.newObject("PartDesign::Pad", "Pad003")
pad4.Profile = sketch5
pad4.Length = Q("2 in")
pad4.Reversed = True

doc.recompute()
